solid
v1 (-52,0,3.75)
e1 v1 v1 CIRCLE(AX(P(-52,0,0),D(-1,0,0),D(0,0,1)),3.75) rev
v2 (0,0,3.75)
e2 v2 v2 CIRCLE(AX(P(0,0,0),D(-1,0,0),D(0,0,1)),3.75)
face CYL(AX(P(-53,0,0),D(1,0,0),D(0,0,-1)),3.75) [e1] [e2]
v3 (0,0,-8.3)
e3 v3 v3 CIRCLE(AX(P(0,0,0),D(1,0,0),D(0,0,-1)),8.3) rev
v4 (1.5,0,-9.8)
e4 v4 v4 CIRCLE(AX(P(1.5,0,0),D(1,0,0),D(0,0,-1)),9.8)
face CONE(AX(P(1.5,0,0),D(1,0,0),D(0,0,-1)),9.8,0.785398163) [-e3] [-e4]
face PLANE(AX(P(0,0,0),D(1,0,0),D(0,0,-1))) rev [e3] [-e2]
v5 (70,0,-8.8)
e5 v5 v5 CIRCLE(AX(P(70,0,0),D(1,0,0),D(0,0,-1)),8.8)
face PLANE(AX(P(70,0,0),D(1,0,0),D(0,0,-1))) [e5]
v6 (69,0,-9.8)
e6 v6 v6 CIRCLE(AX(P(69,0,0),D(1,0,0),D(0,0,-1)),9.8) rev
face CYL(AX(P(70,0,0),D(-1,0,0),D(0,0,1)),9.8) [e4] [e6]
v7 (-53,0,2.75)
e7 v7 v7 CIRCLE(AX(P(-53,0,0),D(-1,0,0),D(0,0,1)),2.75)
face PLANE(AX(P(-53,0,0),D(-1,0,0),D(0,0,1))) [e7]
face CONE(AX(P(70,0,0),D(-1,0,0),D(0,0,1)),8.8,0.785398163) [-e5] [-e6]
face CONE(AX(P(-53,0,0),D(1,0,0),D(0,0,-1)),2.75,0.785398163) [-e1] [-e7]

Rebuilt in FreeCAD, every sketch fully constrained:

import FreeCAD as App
import Part
import Sketcher
Q = App.Units.Quantity


def edges_at(feature, points):
    """Names of the edges that pass closest to the given points."""
    edges = feature.Shape.Edges
    near = lambda p: min(range(len(edges)), key=lambda i: edges[i].distToShape(Part.Vertex(*p))[0])
    return sorted({f"Edge{near(p) + 1}" for p in points})

doc = App.newDocument("Part")
body = doc.addObject("PartDesign::Body", "Body")

# Sketch on YZ plane
sketch1 = body.newObject("Sketcher::SketchObject", "Sketch")
sketch1.AttachmentSupport = (doc.getObject("YZ_Plane"), [""])
sketch1.MapMode = "FlatFace"
sketch1.addGeometry(Part.Circle(App.Vector(0, 0, 0), App.Vector(0, 0, 1), 9.8), False)
sketch1.addConstraint([
    Sketcher.Constraint("Coincident", 0, 3, -1, 1),
    Sketcher.Constraint("Diameter", 0, Q("19.6 mm")),
])
pad1 = body.newObject("PartDesign::Pad", "Pad")
pad1.Profile = sketch1
pad1.Length = 70

# Sketch on YZ plane
sketch2 = body.newObject("Sketcher::SketchObject", "Sketch001")
sketch2.AttachmentSupport = (doc.getObject("YZ_Plane"), [""])
sketch2.MapMode = "FlatFace"
sketch2.addGeometry(Part.Circle(App.Vector(0, 0, 0), App.Vector(0, 0, 1), 3.75), False)
sketch2.addConstraint([
    Sketcher.Constraint("Coincident", 0, 3, -1, 1),
    Sketcher.Constraint("Diameter", 0, Q("7.5 mm")),
])
pad2 = body.newObject("PartDesign::Pad", "Pad001")
pad2.Profile = sketch2
pad2.Length = 53
pad2.Reversed = True
doc.recompute()

chamfer = body.newObject("PartDesign::Chamfer", "Chamfer")
chamfer.Base = (pad2, edges_at(pad2, [(0, 0, 9.8)]))
chamfer.Size = 1.5
doc.recompute()

chamfer2 = body.newObject("PartDesign::Chamfer", "Chamfer001")
chamfer2.Base = (chamfer, edges_at(chamfer, [(-53, 0, -3.75)]))
chamfer2.Size = 1
doc.recompute()

chamfer3 = body.newObject("PartDesign::Chamfer", "Chamfer002")
chamfer3.Base = (chamfer2, edges_at(chamfer2, [(70, 0, 9.8)]))
chamfer3.Size = 1

doc.recompute()
